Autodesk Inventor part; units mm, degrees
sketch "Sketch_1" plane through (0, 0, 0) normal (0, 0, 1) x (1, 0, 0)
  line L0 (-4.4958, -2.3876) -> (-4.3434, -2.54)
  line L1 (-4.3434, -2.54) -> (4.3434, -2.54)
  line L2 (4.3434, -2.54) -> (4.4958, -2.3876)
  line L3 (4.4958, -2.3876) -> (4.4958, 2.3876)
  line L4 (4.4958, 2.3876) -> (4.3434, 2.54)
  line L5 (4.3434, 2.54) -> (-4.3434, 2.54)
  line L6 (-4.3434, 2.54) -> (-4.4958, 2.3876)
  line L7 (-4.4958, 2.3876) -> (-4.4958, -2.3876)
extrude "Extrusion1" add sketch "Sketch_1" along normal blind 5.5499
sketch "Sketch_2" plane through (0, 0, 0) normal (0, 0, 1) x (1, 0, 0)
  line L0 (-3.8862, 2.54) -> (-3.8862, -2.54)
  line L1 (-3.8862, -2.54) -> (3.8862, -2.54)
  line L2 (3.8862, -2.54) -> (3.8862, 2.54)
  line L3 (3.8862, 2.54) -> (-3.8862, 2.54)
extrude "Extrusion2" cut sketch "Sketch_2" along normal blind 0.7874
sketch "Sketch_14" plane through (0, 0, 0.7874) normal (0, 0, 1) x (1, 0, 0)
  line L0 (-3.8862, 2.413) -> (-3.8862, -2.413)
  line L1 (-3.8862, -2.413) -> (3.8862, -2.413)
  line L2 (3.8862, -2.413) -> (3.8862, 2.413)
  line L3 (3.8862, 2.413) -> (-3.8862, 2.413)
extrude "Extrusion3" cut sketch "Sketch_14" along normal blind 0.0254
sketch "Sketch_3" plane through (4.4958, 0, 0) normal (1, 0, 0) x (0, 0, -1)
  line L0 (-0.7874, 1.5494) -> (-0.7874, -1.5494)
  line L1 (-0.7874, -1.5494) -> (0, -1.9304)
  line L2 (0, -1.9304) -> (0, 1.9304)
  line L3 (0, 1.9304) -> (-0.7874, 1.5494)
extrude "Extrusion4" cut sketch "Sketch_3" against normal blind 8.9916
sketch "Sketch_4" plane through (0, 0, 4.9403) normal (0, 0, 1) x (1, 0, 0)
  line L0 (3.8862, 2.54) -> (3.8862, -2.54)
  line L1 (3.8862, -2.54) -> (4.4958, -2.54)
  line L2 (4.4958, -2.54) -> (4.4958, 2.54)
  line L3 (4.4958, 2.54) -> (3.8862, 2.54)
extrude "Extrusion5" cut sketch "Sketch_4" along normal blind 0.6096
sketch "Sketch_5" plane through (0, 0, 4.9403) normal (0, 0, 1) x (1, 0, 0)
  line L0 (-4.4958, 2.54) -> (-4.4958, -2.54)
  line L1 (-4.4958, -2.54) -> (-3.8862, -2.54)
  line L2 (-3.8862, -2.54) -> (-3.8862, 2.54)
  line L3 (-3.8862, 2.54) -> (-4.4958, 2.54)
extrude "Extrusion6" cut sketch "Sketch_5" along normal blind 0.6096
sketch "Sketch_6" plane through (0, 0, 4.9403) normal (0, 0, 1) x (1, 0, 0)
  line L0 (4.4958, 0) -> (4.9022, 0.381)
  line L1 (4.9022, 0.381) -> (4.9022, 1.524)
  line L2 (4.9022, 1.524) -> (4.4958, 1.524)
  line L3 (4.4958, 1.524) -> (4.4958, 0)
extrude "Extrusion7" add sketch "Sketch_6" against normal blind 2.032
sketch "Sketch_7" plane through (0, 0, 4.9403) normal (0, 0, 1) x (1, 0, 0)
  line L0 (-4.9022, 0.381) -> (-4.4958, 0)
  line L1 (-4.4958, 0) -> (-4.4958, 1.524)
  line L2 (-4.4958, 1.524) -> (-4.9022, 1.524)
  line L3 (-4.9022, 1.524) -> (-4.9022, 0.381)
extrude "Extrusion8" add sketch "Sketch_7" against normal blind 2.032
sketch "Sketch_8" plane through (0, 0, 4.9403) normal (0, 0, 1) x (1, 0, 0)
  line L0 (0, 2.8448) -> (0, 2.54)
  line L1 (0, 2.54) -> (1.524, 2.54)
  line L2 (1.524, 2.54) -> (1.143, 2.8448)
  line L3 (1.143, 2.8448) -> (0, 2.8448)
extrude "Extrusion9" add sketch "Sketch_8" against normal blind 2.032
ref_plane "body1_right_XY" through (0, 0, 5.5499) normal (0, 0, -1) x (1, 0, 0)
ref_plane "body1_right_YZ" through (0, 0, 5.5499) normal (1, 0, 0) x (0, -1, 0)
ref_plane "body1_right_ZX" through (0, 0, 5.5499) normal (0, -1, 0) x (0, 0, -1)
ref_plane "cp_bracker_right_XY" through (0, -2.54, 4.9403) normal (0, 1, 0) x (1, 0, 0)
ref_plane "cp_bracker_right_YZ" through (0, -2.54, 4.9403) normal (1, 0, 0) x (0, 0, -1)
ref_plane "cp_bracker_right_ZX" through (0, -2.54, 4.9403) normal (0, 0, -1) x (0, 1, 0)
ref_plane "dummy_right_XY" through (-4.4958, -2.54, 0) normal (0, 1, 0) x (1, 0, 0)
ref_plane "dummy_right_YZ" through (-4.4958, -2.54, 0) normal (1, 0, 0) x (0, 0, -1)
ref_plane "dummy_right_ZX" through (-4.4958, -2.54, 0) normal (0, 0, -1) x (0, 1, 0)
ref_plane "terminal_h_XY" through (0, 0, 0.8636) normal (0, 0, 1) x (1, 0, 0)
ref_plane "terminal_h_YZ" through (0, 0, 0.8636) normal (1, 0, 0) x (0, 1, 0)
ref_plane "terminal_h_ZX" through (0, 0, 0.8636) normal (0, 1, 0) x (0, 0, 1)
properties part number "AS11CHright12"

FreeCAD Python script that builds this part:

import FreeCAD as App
import Part
import Sketcher
Q = App.Units.Quantity


def add_polygon(sketch, points):
    """Adds a closed chain of lines whose ends are joined by coincident constraints."""
    first, n = sketch.GeometryCount, len(points)
    for a, b in zip(points, points[1:] + points[:1]):
        sketch.addGeometry(Part.LineSegment(App.Vector(*a, 0), App.Vector(*b, 0)), False)
    for i in range(n):
        sketch.addConstraint(Sketcher.Constraint("Coincident", first + i, 2, first + (i + 1) % n, 1))

doc = App.newDocument("Part")
body = doc.addObject("PartDesign::Body", "Body")

sketch1 = body.newObject("Sketcher::SketchObject", "Sketch")
sketch1.AttachmentSupport = (doc.getObject("XY_Plane"), [""])
sketch1.MapMode = "FlatFace"
add_polygon(sketch1, [(-4.5, 2.39), (-4.5, -2.39), (-4.34, -2.54), (4.34, -2.54), (4.5, -2.39), (4.5, 2.39), (4.34, 2.54), (-4.34, 2.54)])
sketch1.addConstraint([
    Sketcher.Constraint("Vertical", 0),
    Sketcher.Constraint("Horizontal", 2),
    Sketcher.Constraint("Vertical", 4),
    Sketcher.Constraint("Horizontal", 6),
    Sketcher.Constraint("Symmetric", 0, 2, 4, 2, -1, 1),
    Sketcher.Constraint("Symmetric", 1, 2, 5, 2, -1, 1),
    Sketcher.Constraint("Perpendicular", 1, 3),
    Sketcher.Constraint("Perpendicular", 5, 7),
    Sketcher.Constraint("Horizontal", 0, 2, 3, 2),
    Sketcher.Constraint("Horizontal", 4, 2, 7, 2),
    Sketcher.Constraint("Vertical", 2, 2, 5, 2),
    Sketcher.Constraint("DistanceY", 1, 2, -1, 1, Q("0.1 in")),
    Sketcher.Constraint("DistanceX", 2, 1, 2, 2, Q("0.342 in")),
    Sketcher.Constraint("DistanceY", 0, 2, 0, 1, Q("0.188 in")),
])
pad1 = body.newObject("PartDesign::Pad", "Pad")
pad1.Profile = sketch1
pad1.Length = Q("0.2185 in")

sketch2 = body.newObject("Sketcher::SketchObject", "Sketch001")
sketch2.AttachmentSupport = (doc.getObject("XY_Plane"), [""])
sketch2.MapMode = "FlatFace"
add_polygon(sketch2, [(4, 3), (-4, 3), (-4, -3), (4, -3)])
sketch2.addConstraint([
    Sketcher.Constraint("Horizontal", 0),
    Sketcher.Constraint("Vertical", 1),
    Sketcher.Constraint("Horizontal", 2),
    Sketcher.Constraint("Vertical", 3),
    Sketcher.Constraint("Symmetric", 0, 2, 2, 2, -1, 1),
    Sketcher.Constraint("DistanceY", 1, 2, 1, 1, Q("0.2 in")),
    Sketcher.Constraint("DistanceX", 0, 2, 0, 1, Q("0.306 in")),
])
pocket1 = body.newObject("PartDesign::Pocket", "Pocket")
pocket1.Profile = sketch2
pocket1.Length = Q("0.031 in")
pocket1.Reversed = True

sketch3 = body.newObject("Sketcher::SketchObject", "Sketch002")
sketch3.AttachmentSupport = (doc.getObject("XY_Plane"), [""])
sketch3.MapMode = "FlatFace"
sketch3.AttachmentOffset = App.Placement(App.Vector(0, 0, 0.031 * 25.4), App.Rotation())
add_polygon(sketch3, [(3.9, 2.4), (-3.9, 2.4), (-3.9, -2.4), (3.9, -2.4)])
sketch3.addConstraint([
    Sketcher.Constraint("Horizontal", 0),
    Sketcher.Constraint("Vertical", 1),
    Sketcher.Constraint("Horizontal", 2),
    Sketcher.Constraint("Vertical", 3),
    Sketcher.Constraint("Symmetric", 0, 2, 2, 2, -1, 1),
    Sketcher.Constraint("DistanceY", 1, 2, 1, 1, Q("0.19 in")),
    Sketcher.Constraint("DistanceX", 0, 2, 0, 1, Q("0.306 in")),
])
pocket2 = body.newObject("PartDesign::Pocket", "Pocket001")
pocket2.Profile = sketch3
pocket2.Length = Q("0.001 in")
pocket2.Reversed = True

sketch4 = body.newObject("Sketcher::SketchObject", "Sketch003")
sketch4.AttachmentSupport = (doc.getObject("YZ_Plane"), [""])
sketch4.MapMode = "FlatFace"
sketch4.AttachmentOffset = App.Placement(App.Vector(0, 0, 0.177 * 25.4), App.Rotation())
add_polygon(sketch4, [(1.9, 0), (1.5, 0.8), (-1.5, 0.8), (-1.9, 0)])
sketch4.addConstraint([
    Sketcher.Constraint("Horizontal", 1),
    Sketcher.Constraint("Horizontal", 3),
    Sketcher.Constraint("Symmetric", 2, 2, 3, 2, -1, 1),
    Sketcher.Constraint("Equal", 0, 2),
    Sketcher.Constraint("DistanceX", 1, 2, 1, 1, Q("0.122 in")),
    Sketcher.Constraint("DistanceX", 3, 1, 3, 2, Q("0.152 in")),
    Sketcher.Constraint("Angle", 0, Q("115.821 deg")),
])
pocket3 = body.newObject("PartDesign::Pocket", "Pocket002")
pocket3.Profile = sketch4
pocket3.Length = Q("0.354 in")

sketch5 = body.newObject("Sketcher::SketchObject", "Sketch004")
sketch5.AttachmentSupport = (doc.getObject("XY_Plane"), [""])
sketch5.MapMode = "FlatFace"
sketch5.AttachmentOffset = App.Placement(App.Vector(0, 0, 0.1945 * 25.4), App.Rotation())
add_polygon(sketch5, [(4.5, 2.5), (3.9, 2.5), (3.9, -2.5), (4.5, -2.5)])
sketch5.addConstraint([
    Sketcher.Constraint("Horizontal", 0),
    Sketcher.Constraint("Vertical", 1),
    Sketcher.Constraint("Horizontal", 2),
    Sketcher.Constraint("Vertical", 3),
    Sketcher.Constraint("DistanceY", 1, 2, 1, 1, Q("0.2 in")),
    Sketcher.Constraint("DistanceY", -1, 1, 0, 2, Q("0.1 in")),
    Sketcher.Constraint("DistanceX", 0, 2, 0, 1, Q("0.024 in")),
    Sketcher.Constraint("DistanceX", -1, 1, 0, 2, Q("0.153 in")),
])
pocket4 = body.newObject("PartDesign::Pocket", "Pocket003")
pocket4.Profile = sketch5
pocket4.Length = Q("0.024 in")
pocket4.Reversed = True

sketch6 = body.newObject("Sketcher::SketchObject", "Sketch005")
sketch6.AttachmentSupport = (doc.getObject("XY_Plane"), [""])
sketch6.MapMode = "FlatFace"
sketch6.AttachmentOffset = App.Placement(App.Vector(0, 0, 0.1945 * 25.4), App.Rotation())
add_polygon(sketch6, [(-3.9, 2.5), (-4.5, 2.5), (-4.5, -2.5), (-3.9, -2.5)])
sketch6.addConstraint([
    Sketcher.Constraint("Horizontal", 0),
    Sketcher.Constraint("Vertical", 1),
    Sketcher.Constraint("Horizontal", 2),
    Sketcher.Constraint("Vertical", 3),
    Sketcher.Constraint("DistanceY", 1, 2, 1, 1, Q("0.2 in")),
    Sketcher.Constraint("DistanceY", -1, 1, 0, 2, Q("0.1 in")),
    Sketcher.Constraint("DistanceX", 0, 2, 0, 1, Q("0.024 in")),
    Sketcher.Constraint("DistanceX", 0, 2, -1, 1, Q("0.177 in")),
])
pocket5 = body.newObject("PartDesign::Pocket", "Pocket004")
pocket5.Profile = sketch6
pocket5.Length = Q("0.024 in")
pocket5.Reversed = True

sketch7 = body.newObject("Sketcher::SketchObject", "Sketch006")
sketch7.AttachmentSupport = (doc.getObject("XY_Plane"), [""])
sketch7.MapMode = "FlatFace"
sketch7.AttachmentOffset = App.Placement(App.Vector(0, 0, 0.1945 * 25.4), App.Rotation())
add_polygon(sketch7, [(4.5, 1.52), (4.5, 0), (4.9, 0.38), (4.9, 1.52)])
sketch7.addConstraint([
    Sketcher.Constraint("Vertical", 0),
    Sketcher.Constraint("Vertical", 2),
    Sketcher.Constraint("Horizontal", 3),
    Sketcher.Constraint("PointOnObject", 0, 2, -1),
    Sketcher.Constraint("DistanceY", 0, 2, 0, 1, Q("0.06 in")),
    Sketcher.Constraint("DistanceX", 3, 2, 3, 1, Q("0.016 in")),
    Sketcher.Constraint("DistanceY", 2, 1, 2, 2, Q("0.045 in")),
    Sketcher.Constraint("DistanceX", -1, 1, 0, 2, Q("0.177 in")),
])
pad2 = body.newObject("PartDesign::Pad", "Pad001")
pad2.Profile = sketch7
pad2.Length = Q("0.08 in")
pad2.Reversed = True

sketch8 = body.newObject("Sketcher::SketchObject", "Sketch007")
sketch8.AttachmentSupport = (doc.getObject("XY_Plane"), [""])
sketch8.MapMode = "FlatFace"
sketch8.AttachmentOffset = App.Placement(App.Vector(0, 0, 0.1945 * 25.4), App.Rotation())
add_polygon(sketch8, [(-4.9, 1.52), (-4.9, 0.38), (-4.5, 0), (-4.5, 1.52)])
sketch8.addConstraint([
    Sketcher.Constraint("Vertical", 0),
    Sketcher.Constraint("Vertical", 2),
    Sketcher.Constraint("Horizontal", 3),
    Sketcher.Constraint("PointOnObject", 1, 2, -1),
    Sketcher.Constraint("DistanceY", 2, 1, 2, 2, Q("0.06 in")),
    Sketcher.Constraint("DistanceX", 3, 2, 3, 1, Q("0.016 in")),
    Sketcher.Constraint("DistanceY", 0, 2, 0, 1, Q("0.045 in")),
    Sketcher.Constraint("DistanceX", 0, 2, -1, 1, Q("0.193 in")),
])
pad3 = body.newObject("PartDesign::Pad", "Pad002")
pad3.Profile = sketch8
pad3.Length = Q("0.08 in")
pad3.Reversed = True

sketch9 = body.newObject("Sketcher::SketchObject", "Sketch008")
sketch9.AttachmentSupport = (doc.getObject("XY_Plane"), [""])
sketch9.MapMode = "FlatFace"
sketch9.AttachmentOffset = App.Placement(App.Vector(0, 0, 0.1945 * 25.4), App.Rotation())
add_polygon(sketch9, [(1.14, 2.84), (0, 2.84), (0, 2.54), (1.52, 2.54)])
sketch9.addConstraint([
    Sketcher.Constraint("Horizontal", 0),
    Sketcher.Constraint("Vertical", 1),
    Sketcher.Constraint("Horizontal", 2),
    Sketcher.Constraint("PointOnObject", 0, 2, -2),
    Sketcher.Constraint("DistanceX", 2, 1, 2, 2, Q("0.06 in")),
    Sketcher.Constraint("DistanceY", -1, 1, 1, 2, Q("0.1 in")),
    Sketcher.Constraint("DistanceX", 0, 2, 0, 1, Q("0.045 in")),
    Sketcher.Constraint("DistanceY", 1, 2, 1, 1, Q("0.012 in")),
])
pad4 = body.newObject("PartDesign::Pad", "Pad003")
pad4.Profile = sketch9
pad4.Length = Q("0.08 in")
pad4.Reversed = True

doc.recompute()
